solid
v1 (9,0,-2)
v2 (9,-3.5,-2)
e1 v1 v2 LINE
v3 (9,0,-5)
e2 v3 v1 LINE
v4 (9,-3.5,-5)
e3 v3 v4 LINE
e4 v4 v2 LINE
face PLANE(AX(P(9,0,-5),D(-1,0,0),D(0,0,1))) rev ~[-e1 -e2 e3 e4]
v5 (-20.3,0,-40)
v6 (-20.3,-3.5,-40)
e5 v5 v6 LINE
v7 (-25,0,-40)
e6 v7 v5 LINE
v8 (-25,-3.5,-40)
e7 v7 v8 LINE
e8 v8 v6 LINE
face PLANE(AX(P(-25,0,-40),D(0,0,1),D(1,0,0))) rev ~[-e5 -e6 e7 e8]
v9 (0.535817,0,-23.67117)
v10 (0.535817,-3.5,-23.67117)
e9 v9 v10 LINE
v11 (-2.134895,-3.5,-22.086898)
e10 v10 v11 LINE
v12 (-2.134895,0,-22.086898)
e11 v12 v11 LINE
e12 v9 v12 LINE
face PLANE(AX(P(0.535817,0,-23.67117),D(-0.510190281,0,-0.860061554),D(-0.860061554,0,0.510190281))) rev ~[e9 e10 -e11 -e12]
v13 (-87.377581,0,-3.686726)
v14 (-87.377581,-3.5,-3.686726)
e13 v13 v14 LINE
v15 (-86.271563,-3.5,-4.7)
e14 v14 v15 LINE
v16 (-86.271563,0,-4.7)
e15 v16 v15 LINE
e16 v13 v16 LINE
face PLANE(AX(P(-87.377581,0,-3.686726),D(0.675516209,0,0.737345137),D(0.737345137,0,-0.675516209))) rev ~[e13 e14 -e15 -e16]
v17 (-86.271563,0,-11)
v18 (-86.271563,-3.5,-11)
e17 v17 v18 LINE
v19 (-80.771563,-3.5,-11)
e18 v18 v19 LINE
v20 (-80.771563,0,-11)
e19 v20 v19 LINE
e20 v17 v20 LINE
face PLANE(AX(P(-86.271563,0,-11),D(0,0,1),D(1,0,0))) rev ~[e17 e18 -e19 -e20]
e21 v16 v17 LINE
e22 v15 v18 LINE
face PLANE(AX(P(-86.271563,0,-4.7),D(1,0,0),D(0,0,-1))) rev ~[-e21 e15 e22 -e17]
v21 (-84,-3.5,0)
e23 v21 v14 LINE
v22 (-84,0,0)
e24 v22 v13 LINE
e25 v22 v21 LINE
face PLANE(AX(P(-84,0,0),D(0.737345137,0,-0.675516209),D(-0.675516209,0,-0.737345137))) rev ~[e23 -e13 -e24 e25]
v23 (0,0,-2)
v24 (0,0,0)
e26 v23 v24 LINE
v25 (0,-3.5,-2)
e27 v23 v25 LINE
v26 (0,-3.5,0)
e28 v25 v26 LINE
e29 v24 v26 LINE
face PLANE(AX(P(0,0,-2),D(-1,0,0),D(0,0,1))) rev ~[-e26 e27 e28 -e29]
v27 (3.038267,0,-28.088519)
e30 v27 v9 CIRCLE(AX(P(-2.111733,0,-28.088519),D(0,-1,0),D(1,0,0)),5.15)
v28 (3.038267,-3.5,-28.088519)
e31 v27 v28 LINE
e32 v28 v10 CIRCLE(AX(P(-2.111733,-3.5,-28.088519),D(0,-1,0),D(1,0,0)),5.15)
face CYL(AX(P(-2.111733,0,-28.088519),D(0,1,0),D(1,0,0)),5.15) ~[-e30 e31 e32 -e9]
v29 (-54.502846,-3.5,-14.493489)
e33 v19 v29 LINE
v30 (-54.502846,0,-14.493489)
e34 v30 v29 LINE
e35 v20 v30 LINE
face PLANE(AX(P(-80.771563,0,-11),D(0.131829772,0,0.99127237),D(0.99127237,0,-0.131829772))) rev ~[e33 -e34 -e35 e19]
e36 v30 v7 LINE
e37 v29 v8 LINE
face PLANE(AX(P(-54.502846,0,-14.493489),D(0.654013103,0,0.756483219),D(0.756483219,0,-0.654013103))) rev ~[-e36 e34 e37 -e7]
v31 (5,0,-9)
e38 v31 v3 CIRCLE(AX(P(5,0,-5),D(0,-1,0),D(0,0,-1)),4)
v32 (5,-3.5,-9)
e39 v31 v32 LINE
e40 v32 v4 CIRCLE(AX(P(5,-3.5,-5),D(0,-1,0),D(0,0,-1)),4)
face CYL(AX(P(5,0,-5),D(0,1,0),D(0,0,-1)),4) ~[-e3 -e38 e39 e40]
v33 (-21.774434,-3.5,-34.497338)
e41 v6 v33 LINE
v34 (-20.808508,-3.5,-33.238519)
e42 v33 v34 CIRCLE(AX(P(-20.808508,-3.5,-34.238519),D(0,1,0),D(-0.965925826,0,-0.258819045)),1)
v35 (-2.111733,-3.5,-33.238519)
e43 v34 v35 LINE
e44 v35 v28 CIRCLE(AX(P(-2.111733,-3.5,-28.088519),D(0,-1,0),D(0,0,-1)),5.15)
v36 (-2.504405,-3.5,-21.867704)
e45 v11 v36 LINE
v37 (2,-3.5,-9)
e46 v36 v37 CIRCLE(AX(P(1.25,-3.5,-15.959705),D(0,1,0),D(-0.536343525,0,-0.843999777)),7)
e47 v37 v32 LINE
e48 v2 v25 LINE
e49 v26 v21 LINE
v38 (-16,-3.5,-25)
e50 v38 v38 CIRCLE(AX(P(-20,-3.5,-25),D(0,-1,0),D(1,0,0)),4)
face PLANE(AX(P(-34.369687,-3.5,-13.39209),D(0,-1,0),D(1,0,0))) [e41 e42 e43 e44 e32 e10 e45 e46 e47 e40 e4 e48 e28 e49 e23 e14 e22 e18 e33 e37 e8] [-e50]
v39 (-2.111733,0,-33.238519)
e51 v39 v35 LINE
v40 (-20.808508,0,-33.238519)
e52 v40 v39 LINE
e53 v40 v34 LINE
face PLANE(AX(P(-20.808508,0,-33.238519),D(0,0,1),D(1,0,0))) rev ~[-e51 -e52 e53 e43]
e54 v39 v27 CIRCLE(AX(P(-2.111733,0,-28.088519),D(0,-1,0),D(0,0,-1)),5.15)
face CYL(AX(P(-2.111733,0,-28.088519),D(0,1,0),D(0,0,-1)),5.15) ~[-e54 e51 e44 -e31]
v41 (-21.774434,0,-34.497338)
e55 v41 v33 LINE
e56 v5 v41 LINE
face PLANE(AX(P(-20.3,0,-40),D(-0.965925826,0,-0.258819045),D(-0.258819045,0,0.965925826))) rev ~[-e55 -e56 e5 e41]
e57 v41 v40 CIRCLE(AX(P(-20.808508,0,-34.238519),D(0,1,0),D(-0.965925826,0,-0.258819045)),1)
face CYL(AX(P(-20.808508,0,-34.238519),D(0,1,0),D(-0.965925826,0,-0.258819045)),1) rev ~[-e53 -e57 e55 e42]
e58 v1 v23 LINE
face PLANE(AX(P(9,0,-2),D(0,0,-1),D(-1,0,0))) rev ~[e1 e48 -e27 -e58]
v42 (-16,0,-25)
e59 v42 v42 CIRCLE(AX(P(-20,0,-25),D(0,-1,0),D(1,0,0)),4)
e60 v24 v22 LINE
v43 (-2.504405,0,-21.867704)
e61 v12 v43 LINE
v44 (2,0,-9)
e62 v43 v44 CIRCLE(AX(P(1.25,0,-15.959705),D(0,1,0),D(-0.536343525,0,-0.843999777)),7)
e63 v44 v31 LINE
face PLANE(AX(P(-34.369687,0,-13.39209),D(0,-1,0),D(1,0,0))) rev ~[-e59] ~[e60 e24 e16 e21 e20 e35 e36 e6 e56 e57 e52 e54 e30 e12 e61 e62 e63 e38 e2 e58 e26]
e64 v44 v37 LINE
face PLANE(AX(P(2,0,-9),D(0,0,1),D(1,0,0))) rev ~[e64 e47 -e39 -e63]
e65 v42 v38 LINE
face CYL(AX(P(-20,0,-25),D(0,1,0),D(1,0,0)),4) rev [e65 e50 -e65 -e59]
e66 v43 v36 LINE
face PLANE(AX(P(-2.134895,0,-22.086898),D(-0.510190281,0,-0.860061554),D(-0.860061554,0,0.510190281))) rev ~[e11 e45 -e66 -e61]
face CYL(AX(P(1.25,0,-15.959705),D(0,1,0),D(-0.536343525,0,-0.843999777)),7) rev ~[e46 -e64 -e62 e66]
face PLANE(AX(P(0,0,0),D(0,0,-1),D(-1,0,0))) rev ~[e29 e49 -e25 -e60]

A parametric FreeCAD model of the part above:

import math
import FreeCAD as App
import Part
import Sketcher
from FreeCAD import Vector
Q = App.Units.Quantity

doc = App.newDocument("Part")
body = doc.addObject("PartDesign::Body", "Body")

sketch1 = body.newObject("Sketcher::SketchObject", "Sketch")
sketch1.AttachmentSupport = (doc.getObject("XZ_Plane"), [""])
sketch1.MapMode = "FlatFace"
sketch1.addGeometry([
    Part.LineSegment(Vector(9, -2, 0), Vector(0, -2, 0)),
    Part.LineSegment(Vector(0, -2, 0), Vector(0, 0, 0)),
    Part.LineSegment(Vector(0, 0, 0), Vector(-84, 0, 0)),
    Part.LineSegment(Vector(-84, 0, 0), Vector(-87.377581, -3.686726, 0)),
    Part.LineSegment(Vector(-87.377581, -3.686726, 0), Vector(-86.271563, -4.7, 0)),
    Part.LineSegment(Vector(-86.271563, -4.7, 0), Vector(-86.271563, -11, 0)),
    Part.LineSegment(Vector(-86.271563, -11, 0), Vector(-80.771563, -11, 0)),
    Part.LineSegment(Vector(-80.771563, -11, 0), Vector(-54.502846, -14.493489, 0)),
    Part.LineSegment(Vector(-54.502846, -14.493489, 0), Vector(-25, -40, 0)),
    Part.LineSegment(Vector(-25, -40, 0), Vector(-20.3, -40, 0)),
    Part.LineSegment(Vector(-20.3, -40, 0), Vector(-21.774434, -34.497338, 0)),
    Part.ArcOfCircle(Part.Circle(Vector(-20.808508, -34.238519, 0), Vector(0, 0, 1), 1), math.radians(90), math.radians(195)),
    Part.LineSegment(Vector(-20.808508, -33.238519, 0), Vector(-2.111733, -33.238519, 0)),
    Part.ArcOfCircle(Part.Circle(Vector(-2.111733, -28.088519, 0), Vector(0, 0, 1), 5.15), math.radians(-90), math.radians(0)),
    Part.ArcOfCircle(Part.Circle(Vector(-2.111733, -28.088519, 0), Vector(0, 0, 1), 5.15), math.radians(0), math.radians(59.063521)),
    Part.LineSegment(Vector(0.535817, -23.67117, 0), Vector(-2.134895, -22.086898, 0)),
    Part.LineSegment(Vector(-2.134895, -22.086898, 0), Vector(-2.504405, -21.867704, 0)),
    Part.ArcOfCircle(Part.Circle(Vector(1.25, -15.959705, 0), Vector(0, 0, 1), 7), math.radians(83.84936), math.radians(237.564928)),
    Part.LineSegment(Vector(2, -9, 0), Vector(5, -9, 0)),
    Part.ArcOfCircle(Part.Circle(Vector(5, -5, 0), Vector(0, 0, 1), 4), math.radians(-90), math.radians(0)),
    Part.LineSegment(Vector(9, -5, 0), Vector(9, -2, 0)),
    Part.Circle(Vector(-20, -25, 0), Vector(0, 0, 1), 4),
], False)
sketch1.addConstraint([
    Sketcher.Constraint("Coincident", 0, 2, 1, 1),
    Sketcher.Constraint("Coincident", 1, 2, 2, 1),
    Sketcher.Constraint("Coincident", 2, 2, 3, 1),
    Sketcher.Constraint("Coincident", 3, 2, 4, 1),
    Sketcher.Constraint("Coincident", 4, 2, 5, 1),
    Sketcher.Constraint("Coincident", 5, 2, 6, 1),
    Sketcher.Constraint("Coincident", 6, 2, 7, 1),
    Sketcher.Constraint("Coincident", 7, 2, 8, 1),
    Sketcher.Constraint("Coincident", 8, 2, 9, 1),
    Sketcher.Constraint("Coincident", 9, 2, 10, 1),
    Sketcher.Constraint("Tangent", 10, 2, 11, 2),
    Sketcher.Constraint("Tangent", 11, 1, 12, 1),
    Sketcher.Constraint("Tangent", 12, 2, 13, 1),
    Sketcher.Constraint("Tangent", 13, 2, 14, 1),
    Sketcher.Constraint("Coincident", 14, 2, 15, 1),
    Sketcher.Constraint("Coincident", 15, 2, 16, 1),
    Sketcher.Constraint("Coincident", 16, 2, 17, 2),
    Sketcher.Constraint("Coincident", 17, 1, 18, 1),
    Sketcher.Constraint("Tangent", 18, 2, 19, 1),
    Sketcher.Constraint("Tangent", 19, 2, 20, 1),
    Sketcher.Constraint("Coincident", 20, 2, 0, 1),
    Sketcher.Constraint("Horizontal", 0),
    Sketcher.Constraint("Vertical", 1),
    Sketcher.Constraint("Horizontal", 2),
    Sketcher.Constraint("Vertical", 5),
    Sketcher.Constraint("Horizontal", 6),
    Sketcher.Constraint("Horizontal", 9),
    Sketcher.Constraint("Horizontal", 12),
    Sketcher.Constraint("Horizontal", 18),
    Sketcher.Constraint("Vertical", 20),
    Sketcher.Constraint("Coincident", 1, 2, -1, 1),
    Sketcher.Constraint("Equal", 13, 14),
    Sketcher.Constraint("Equal", 19, 21),
    Sketcher.Constraint("Perpendicular", 3, 4),
    Sketcher.Constraint("Parallel", 15, 16),
    Sketcher.Constraint("Horizontal", 14, 3, 13, 2),
    Sketcher.Constraint("Equal", 18, 20),
    Sketcher.Constraint("Diameter", 21, 8.0),
    Sketcher.Constraint("Radius", 11, 1.0),
    Sketcher.Constraint("Radius", 17, 7.0),
    Sketcher.Constraint("DistanceX", 0, 2, 0, 1, 9.0),
    Sketcher.Constraint("DistanceX", 2, 2, 2, 1, 84.0),
    Sketcher.Constraint("DistanceX", 18, 1, 18, 2, 3.0),
    Sketcher.Constraint("DistanceY", 1, 1, 1, 2, 2.0),
    Sketcher.Constraint("Angle", 10, Q("105 deg")),
    Sketcher.Constraint("Radius", 13, 5.15),
    Sketcher.Constraint("Distance", 3, 5.0),
    Sketcher.Constraint("Distance", 8, 39.0),
    Sketcher.Constraint("DistanceX", 6, 1, 6, 2, 5.5),
    Sketcher.Constraint("DistanceX", 9, 1, 9, 2, 4.7),
    Sketcher.Constraint("DistanceY", 5, 2, 5, 1, 6.3),
    Sketcher.Constraint("DistanceX", 21, 3, -1, 1, 20.0),
    Sketcher.Constraint("DistanceY", 21, 3, -1, 1, 25.0),
    Sketcher.Constraint("DistanceY", 5, 2, -1, 1, 11.0),
    Sketcher.Constraint("DistanceX", 8, 2, -1, 1, 25.0),
    Sketcher.Constraint("DistanceY", 8, 2, -1, 1, 40.0),
    Sketcher.Constraint("Distance", 4, 1.5),
    Sketcher.Constraint("Distance", 7, 26.5),
    Sketcher.Constraint("DistanceX", -1, 1, 17, 3, 1.25),
    Sketcher.Constraint("DistanceY", 16, 2, 17, 3, 5.907998),
    Sketcher.Constraint("DistanceX", 10, 2, 13, 3, 19.6627),
    Sketcher.Constraint("Distance", 16, 0.429631),
    Sketcher.Constraint("DistanceY", 11, 3, -1, 1, 34.238519),
    Sketcher.Constraint("DistanceY", 14, 2, -1, 1, 23.67117),
])
pad1 = body.newObject("PartDesign::Pad", "Pad")
pad1.Profile = sketch1
pad1.Length = 3.5

doc.recompute()
